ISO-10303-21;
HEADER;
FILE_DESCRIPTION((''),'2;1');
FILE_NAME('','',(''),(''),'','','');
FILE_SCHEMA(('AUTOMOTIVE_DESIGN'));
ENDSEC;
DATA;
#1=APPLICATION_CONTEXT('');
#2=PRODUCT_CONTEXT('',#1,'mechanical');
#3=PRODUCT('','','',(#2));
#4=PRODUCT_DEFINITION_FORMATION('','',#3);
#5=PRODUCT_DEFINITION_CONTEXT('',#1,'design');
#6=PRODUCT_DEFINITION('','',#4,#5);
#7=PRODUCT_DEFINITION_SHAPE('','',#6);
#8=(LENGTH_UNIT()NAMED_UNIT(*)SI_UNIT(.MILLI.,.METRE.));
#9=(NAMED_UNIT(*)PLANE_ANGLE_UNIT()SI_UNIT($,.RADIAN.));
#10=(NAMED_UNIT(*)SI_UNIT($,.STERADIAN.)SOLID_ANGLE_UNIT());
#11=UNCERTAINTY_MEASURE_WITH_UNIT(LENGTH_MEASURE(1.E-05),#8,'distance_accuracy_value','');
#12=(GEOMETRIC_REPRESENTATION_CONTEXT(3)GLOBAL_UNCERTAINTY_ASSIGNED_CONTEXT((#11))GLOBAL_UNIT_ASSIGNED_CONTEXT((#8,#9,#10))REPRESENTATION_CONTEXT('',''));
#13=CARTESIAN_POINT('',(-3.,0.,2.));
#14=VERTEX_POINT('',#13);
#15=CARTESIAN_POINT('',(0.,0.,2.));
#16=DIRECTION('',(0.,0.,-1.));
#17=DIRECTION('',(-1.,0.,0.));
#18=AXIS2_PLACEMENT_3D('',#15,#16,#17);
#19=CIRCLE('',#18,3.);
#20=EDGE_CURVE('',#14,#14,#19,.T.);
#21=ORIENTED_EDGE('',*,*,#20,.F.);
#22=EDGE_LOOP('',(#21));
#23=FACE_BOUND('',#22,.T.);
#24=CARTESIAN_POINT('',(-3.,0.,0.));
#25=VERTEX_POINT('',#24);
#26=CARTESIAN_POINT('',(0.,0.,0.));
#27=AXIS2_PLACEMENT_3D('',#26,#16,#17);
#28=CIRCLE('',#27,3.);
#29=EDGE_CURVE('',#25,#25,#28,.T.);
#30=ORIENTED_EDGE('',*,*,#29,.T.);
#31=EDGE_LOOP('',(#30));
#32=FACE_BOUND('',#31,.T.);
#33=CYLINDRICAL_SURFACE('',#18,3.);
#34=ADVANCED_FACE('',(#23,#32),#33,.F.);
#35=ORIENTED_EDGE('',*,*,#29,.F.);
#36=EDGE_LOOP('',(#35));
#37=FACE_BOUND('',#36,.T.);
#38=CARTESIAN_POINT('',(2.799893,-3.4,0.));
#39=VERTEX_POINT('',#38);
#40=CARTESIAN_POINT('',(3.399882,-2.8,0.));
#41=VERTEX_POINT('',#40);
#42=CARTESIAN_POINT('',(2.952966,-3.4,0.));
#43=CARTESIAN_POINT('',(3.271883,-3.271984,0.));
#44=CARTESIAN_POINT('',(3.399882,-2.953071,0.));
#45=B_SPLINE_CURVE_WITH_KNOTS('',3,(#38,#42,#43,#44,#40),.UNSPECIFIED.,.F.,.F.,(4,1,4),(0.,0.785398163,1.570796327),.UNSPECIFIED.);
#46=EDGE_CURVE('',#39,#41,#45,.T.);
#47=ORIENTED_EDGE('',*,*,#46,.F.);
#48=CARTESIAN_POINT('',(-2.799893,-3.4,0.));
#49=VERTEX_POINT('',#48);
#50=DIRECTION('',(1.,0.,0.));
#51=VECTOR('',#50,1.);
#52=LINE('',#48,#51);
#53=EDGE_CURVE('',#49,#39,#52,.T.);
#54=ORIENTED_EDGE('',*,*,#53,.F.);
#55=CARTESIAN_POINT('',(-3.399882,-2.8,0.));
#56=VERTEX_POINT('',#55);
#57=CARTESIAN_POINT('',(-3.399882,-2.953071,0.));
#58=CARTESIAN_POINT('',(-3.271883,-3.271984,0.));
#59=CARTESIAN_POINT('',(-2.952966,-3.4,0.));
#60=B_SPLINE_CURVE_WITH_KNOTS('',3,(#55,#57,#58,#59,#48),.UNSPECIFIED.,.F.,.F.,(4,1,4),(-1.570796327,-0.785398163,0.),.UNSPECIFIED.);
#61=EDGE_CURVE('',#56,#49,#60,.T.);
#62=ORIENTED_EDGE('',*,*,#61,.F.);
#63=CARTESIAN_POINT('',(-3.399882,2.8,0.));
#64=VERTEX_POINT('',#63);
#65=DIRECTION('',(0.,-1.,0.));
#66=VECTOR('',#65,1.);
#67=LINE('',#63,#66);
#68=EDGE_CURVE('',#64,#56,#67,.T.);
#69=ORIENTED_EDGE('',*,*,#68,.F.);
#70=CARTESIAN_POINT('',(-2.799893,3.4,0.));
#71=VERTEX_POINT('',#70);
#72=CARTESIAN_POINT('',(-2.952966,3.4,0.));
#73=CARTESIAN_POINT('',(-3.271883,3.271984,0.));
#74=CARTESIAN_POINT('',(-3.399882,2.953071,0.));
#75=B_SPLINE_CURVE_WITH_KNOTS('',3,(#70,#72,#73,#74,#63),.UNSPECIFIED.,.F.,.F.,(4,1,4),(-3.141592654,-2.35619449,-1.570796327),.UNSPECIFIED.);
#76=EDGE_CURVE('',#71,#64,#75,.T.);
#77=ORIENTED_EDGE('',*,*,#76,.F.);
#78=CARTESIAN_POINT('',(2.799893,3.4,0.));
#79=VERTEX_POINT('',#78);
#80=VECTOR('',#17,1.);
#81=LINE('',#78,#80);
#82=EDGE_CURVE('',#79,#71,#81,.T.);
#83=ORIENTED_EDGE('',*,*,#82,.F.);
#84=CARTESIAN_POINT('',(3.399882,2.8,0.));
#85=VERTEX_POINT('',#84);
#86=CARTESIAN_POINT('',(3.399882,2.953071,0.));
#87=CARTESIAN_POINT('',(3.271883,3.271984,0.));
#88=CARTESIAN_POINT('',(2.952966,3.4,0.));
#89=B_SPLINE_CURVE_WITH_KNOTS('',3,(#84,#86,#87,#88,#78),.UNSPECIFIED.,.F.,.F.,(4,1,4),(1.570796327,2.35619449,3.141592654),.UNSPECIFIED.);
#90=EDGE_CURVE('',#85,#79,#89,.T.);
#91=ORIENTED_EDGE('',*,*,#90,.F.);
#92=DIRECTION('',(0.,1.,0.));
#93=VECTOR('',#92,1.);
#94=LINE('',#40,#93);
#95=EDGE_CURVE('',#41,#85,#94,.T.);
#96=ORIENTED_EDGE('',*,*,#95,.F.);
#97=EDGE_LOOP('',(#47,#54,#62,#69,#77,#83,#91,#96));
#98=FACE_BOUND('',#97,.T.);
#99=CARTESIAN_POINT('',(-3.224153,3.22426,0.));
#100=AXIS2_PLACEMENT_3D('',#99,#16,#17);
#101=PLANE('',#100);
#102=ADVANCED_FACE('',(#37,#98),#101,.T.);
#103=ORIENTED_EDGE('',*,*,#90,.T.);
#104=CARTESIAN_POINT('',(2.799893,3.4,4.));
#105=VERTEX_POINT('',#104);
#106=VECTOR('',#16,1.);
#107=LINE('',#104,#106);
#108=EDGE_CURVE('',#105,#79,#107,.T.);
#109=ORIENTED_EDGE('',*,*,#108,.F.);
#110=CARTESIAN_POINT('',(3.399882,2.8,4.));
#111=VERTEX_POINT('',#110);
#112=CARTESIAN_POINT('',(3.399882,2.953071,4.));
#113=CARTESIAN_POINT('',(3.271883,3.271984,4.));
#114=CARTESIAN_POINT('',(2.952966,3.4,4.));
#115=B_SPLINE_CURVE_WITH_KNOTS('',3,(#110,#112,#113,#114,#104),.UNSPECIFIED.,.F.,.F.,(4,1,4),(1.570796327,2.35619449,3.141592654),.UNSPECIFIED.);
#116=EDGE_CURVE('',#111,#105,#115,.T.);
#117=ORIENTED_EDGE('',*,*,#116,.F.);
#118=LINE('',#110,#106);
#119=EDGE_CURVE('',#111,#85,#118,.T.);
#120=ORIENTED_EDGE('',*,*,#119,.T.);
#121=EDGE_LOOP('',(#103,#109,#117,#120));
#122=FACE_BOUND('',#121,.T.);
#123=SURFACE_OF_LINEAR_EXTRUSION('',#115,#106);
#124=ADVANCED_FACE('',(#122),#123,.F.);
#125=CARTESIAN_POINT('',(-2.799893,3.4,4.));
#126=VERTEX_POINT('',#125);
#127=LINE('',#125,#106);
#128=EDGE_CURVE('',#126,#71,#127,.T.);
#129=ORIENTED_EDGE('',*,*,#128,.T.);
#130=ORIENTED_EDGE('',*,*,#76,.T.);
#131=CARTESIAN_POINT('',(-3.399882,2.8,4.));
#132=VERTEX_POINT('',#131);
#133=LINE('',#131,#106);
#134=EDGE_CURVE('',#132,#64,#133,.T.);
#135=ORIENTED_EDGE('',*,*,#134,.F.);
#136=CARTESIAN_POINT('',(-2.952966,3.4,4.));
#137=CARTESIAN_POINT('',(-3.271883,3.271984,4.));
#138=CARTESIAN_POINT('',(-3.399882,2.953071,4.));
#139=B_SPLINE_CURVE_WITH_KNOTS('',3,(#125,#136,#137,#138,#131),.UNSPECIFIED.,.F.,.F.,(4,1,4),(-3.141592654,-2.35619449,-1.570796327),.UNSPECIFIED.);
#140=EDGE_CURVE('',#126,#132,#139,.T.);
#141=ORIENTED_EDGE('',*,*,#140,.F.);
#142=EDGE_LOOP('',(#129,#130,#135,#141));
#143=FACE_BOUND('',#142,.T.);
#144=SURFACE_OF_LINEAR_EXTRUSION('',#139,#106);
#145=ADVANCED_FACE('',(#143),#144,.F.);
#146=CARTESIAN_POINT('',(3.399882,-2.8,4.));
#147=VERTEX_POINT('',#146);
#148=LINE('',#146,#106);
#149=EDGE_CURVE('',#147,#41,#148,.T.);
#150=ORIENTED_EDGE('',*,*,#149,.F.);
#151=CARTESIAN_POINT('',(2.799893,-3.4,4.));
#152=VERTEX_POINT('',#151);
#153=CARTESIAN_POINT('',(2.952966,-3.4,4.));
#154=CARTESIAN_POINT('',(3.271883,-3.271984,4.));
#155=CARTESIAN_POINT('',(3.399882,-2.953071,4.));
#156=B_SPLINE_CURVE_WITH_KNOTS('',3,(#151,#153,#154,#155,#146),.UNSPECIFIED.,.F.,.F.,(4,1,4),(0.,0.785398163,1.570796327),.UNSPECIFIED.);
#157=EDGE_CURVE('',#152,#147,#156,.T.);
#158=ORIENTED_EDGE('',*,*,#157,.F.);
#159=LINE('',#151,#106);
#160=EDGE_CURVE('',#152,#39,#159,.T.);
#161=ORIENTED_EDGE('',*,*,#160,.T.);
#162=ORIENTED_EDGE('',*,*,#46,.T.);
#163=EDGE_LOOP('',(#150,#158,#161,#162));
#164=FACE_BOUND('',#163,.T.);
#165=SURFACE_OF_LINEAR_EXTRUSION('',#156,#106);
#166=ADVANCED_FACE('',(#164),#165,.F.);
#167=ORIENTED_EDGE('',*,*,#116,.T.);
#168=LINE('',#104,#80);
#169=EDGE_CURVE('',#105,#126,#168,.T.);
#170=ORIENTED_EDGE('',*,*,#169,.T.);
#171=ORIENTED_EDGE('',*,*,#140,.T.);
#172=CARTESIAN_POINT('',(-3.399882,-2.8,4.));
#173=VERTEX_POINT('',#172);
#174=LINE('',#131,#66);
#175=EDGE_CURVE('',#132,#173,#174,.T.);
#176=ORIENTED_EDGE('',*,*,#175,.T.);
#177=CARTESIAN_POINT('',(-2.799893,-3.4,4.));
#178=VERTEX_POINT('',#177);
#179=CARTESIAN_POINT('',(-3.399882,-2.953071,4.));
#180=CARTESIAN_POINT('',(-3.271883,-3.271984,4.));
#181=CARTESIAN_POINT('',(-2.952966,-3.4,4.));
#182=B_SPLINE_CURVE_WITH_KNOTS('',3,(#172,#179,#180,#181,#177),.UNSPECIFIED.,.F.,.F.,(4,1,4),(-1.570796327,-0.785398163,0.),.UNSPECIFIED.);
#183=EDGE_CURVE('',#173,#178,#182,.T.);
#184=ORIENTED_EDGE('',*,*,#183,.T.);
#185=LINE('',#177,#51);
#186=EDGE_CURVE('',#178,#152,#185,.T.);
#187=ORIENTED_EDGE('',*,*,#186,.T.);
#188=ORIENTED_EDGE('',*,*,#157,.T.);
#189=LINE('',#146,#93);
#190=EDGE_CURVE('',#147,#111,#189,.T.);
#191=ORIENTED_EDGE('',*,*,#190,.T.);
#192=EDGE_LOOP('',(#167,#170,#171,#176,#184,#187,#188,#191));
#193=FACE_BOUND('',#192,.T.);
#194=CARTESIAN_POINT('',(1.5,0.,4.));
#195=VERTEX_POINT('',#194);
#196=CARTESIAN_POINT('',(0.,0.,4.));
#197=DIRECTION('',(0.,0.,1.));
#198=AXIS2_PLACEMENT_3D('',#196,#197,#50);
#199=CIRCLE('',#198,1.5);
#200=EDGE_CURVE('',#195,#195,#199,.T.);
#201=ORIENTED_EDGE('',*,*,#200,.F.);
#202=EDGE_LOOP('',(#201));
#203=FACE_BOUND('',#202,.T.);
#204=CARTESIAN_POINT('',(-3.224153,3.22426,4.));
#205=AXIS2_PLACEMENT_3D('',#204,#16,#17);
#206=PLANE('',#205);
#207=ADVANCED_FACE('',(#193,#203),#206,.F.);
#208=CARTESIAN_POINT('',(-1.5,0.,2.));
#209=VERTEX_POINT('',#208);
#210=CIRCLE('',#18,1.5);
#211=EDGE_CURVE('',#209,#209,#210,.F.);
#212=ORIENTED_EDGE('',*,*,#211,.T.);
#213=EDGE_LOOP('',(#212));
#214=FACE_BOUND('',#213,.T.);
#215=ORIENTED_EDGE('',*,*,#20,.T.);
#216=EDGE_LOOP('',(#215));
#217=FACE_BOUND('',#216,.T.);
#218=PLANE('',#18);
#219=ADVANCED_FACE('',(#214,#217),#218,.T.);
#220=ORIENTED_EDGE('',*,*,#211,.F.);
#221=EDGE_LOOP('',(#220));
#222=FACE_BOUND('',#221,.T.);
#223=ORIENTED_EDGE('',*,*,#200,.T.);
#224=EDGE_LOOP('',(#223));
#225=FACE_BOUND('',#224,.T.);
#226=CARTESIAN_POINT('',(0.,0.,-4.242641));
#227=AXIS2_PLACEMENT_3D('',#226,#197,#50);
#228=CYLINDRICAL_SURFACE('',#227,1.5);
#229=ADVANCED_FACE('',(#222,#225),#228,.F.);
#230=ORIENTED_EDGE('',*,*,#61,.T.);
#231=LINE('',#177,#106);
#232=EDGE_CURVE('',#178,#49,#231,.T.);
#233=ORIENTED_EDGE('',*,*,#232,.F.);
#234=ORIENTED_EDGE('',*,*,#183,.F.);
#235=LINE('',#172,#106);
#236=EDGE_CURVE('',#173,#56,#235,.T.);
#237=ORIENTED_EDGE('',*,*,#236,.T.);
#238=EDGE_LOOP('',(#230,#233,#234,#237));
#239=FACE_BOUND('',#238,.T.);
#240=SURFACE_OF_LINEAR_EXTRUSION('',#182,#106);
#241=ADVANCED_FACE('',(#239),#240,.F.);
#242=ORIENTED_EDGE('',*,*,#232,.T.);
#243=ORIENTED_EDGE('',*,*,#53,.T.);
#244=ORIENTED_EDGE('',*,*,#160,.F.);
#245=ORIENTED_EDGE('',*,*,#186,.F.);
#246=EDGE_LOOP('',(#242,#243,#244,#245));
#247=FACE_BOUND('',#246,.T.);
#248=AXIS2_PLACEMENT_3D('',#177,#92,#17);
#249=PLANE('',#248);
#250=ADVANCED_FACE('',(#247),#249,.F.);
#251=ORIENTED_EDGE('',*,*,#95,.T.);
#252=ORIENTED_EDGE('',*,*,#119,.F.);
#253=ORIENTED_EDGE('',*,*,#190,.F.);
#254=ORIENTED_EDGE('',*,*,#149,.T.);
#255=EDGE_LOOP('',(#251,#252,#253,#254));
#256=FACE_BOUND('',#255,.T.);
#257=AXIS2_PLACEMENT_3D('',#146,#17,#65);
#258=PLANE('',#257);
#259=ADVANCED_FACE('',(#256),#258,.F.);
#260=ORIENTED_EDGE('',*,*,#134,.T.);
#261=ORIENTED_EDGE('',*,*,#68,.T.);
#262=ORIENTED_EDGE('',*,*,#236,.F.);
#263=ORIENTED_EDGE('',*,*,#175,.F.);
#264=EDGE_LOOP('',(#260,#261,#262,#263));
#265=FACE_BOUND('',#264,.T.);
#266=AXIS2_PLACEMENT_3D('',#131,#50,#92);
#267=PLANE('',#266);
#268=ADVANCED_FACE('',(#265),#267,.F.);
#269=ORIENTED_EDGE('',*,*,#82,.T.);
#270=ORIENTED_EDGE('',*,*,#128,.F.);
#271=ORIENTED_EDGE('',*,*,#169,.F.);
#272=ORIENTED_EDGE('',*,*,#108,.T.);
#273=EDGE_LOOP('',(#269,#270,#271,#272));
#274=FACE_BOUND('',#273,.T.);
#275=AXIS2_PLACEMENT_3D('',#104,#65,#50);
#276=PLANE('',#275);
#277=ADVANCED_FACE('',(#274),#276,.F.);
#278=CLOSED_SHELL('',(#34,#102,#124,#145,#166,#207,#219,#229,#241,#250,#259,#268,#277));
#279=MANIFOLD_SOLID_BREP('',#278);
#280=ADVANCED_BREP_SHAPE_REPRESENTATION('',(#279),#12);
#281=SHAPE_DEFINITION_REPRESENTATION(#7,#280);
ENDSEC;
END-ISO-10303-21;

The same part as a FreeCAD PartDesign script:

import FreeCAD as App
import Part
import Sketcher
from FreeCAD import Vector
Q = App.Units.Quantity

doc = App.newDocument("Part")
body = doc.addObject("PartDesign::Body", "Body")

# Sketch on XY plane
sketch1 = doc.addObject("Sketcher::SketchObject", "Sketch")
body.addObject(sketch1)
sketch1.AttachmentSupport = (doc.XY_Plane, [""])
sketch1.MapMode = "FlatFace"
sketch1.addGeometry(Part.LineSegment(Vector(-3.399882, 2.8, 0), Vector(-3.399882, -2.8, 0)), False)
sketch1.addGeometry(Part.BSplineCurve([Vector(-3.399882, -2.8, 0), Vector(-3.399882, -2.953071, 0), Vector(-3.271883, -3.271984, 0), Vector(-2.952966, -3.4, 0), Vector(-2.799893, -3.4, 0)], [4, 1, 4], [-1.570796327, -0.785398163, 0], False, 3, [1, 1, 1, 1, 1], False), False)
sketch1.addGeometry(Part.LineSegment(Vector(-2.799893, -3.4, 0), Vector(2.799893, -3.4, 0)), False)
sketch1.addGeometry(Part.BSplineCurve([Vector(2.799893, -3.4, 0), Vector(2.952966, -3.4, 0), Vector(3.271883, -3.271984, 0), Vector(3.399882, -2.953071, 0), Vector(3.399882, -2.8, 0)], [4, 1, 4], [0, 0.785398163, 1.570796327], False, 3, [1, 1, 1, 1, 1], False), False)
sketch1.addGeometry(Part.LineSegment(Vector(3.399882, -2.8, 0), Vector(3.399882, 2.8, 0)), False)
sketch1.addGeometry(Part.BSplineCurve([Vector(3.399882, 2.8, 0), Vector(3.399882, 2.953071, 0), Vector(3.271883, 3.271984, 0), Vector(2.952966, 3.4, 0), Vector(2.799893, 3.4, 0)], [4, 1, 4], [1.570796327, 2.35619449, 3.141592654], False, 3, [1, 1, 1, 1, 1], False), False)
sketch1.addGeometry(Part.LineSegment(Vector(2.799893, 3.4, 0), Vector(-2.799893, 3.4, 0)), False)
sketch1.addGeometry(Part.BSplineCurve([Vector(-2.799893, 3.4, 0), Vector(-2.952966, 3.4, 0), Vector(-3.271883, 3.271984, 0), Vector(-3.399882, 2.953071, 0), Vector(-3.399882, 2.8, 0)], [4, 1, 4], [-3.141592654, -2.35619449, -1.570796327], False, 3, [1, 1, 1, 1, 1], False), False)
sketch1.addConstraint(Sketcher.Constraint("Block", 1))
sketch1.addConstraint(Sketcher.Constraint("Block", 3))
sketch1.addConstraint(Sketcher.Constraint("Block", 5))
sketch1.addConstraint(Sketcher.Constraint("Block", 7))
sketch1.addConstraint(Sketcher.Constraint("Coincident", 0, 2, 1, 1))
sketch1.addConstraint(Sketcher.Constraint("Coincident", 1, 2, 2, 1))
sketch1.addConstraint(Sketcher.Constraint("Coincident", 2, 2, 3, 1))
sketch1.addConstraint(Sketcher.Constraint("Coincident", 3, 2, 4, 1))
sketch1.addConstraint(Sketcher.Constraint("Coincident", 4, 2, 5, 1))
sketch1.addConstraint(Sketcher.Constraint("Coincident", 5, 2, 6, 1))
sketch1.addConstraint(Sketcher.Constraint("Coincident", 6, 2, 7, 1))
sketch1.addConstraint(Sketcher.Constraint("Coincident", 7, 2, 0, 1))
pad1 = doc.addObject("PartDesign::Pad", "Pad")
body.addObject(pad1)
pad1.Profile = sketch1
pad1.Length = 4

# Sketch on XY plane
sketch2 = doc.addObject("Sketcher::SketchObject", "Sketch001")
body.addObject(sketch2)
sketch2.AttachmentSupport = (doc.XY_Plane, [""])
sketch2.MapMode = "FlatFace"
sketch2.AttachmentOffset = App.Placement(Vector(0, 0, 4), App.Rotation())
sketch2.addGeometry(Part.Circle(Vector(0, 0, 0), Vector(0, 0, 1), 1.5), False)
sketch2.addConstraint(Sketcher.Constraint("Coincident", 0, 3, -1, 1))
sketch2.addConstraint(Sketcher.Constraint("Diameter", 0, Q("3 mm")))
pocket1 = doc.addObject("PartDesign::Pocket", "Pocket")
body.addObject(pocket1)
pocket1.Profile = sketch2
pocket1.Length = 4

# Sketch on XY plane
sketch3 = doc.addObject("Sketcher::SketchObject", "Sketch002")
body.addObject(sketch3)
sketch3.AttachmentSupport = (doc.XY_Plane, [""])
sketch3.MapMode = "FlatFace"
sketch3.addGeometry(Part.Circle(Vector(0, 0, 0), Vector(0, 0, 1), 3), False)
sketch3.addConstraint(Sketcher.Constraint("Coincident", 0, 3, -1, 1))
sketch3.addConstraint(Sketcher.Constraint("Diameter", 0, Q("6 mm")))
pocket2 = doc.addObject("PartDesign::Pocket", "Pocket001")
body.addObject(pocket2)
pocket2.Profile = sketch3
pocket2.Length = 2
pocket2.Reversed = True

doc.recompute()
